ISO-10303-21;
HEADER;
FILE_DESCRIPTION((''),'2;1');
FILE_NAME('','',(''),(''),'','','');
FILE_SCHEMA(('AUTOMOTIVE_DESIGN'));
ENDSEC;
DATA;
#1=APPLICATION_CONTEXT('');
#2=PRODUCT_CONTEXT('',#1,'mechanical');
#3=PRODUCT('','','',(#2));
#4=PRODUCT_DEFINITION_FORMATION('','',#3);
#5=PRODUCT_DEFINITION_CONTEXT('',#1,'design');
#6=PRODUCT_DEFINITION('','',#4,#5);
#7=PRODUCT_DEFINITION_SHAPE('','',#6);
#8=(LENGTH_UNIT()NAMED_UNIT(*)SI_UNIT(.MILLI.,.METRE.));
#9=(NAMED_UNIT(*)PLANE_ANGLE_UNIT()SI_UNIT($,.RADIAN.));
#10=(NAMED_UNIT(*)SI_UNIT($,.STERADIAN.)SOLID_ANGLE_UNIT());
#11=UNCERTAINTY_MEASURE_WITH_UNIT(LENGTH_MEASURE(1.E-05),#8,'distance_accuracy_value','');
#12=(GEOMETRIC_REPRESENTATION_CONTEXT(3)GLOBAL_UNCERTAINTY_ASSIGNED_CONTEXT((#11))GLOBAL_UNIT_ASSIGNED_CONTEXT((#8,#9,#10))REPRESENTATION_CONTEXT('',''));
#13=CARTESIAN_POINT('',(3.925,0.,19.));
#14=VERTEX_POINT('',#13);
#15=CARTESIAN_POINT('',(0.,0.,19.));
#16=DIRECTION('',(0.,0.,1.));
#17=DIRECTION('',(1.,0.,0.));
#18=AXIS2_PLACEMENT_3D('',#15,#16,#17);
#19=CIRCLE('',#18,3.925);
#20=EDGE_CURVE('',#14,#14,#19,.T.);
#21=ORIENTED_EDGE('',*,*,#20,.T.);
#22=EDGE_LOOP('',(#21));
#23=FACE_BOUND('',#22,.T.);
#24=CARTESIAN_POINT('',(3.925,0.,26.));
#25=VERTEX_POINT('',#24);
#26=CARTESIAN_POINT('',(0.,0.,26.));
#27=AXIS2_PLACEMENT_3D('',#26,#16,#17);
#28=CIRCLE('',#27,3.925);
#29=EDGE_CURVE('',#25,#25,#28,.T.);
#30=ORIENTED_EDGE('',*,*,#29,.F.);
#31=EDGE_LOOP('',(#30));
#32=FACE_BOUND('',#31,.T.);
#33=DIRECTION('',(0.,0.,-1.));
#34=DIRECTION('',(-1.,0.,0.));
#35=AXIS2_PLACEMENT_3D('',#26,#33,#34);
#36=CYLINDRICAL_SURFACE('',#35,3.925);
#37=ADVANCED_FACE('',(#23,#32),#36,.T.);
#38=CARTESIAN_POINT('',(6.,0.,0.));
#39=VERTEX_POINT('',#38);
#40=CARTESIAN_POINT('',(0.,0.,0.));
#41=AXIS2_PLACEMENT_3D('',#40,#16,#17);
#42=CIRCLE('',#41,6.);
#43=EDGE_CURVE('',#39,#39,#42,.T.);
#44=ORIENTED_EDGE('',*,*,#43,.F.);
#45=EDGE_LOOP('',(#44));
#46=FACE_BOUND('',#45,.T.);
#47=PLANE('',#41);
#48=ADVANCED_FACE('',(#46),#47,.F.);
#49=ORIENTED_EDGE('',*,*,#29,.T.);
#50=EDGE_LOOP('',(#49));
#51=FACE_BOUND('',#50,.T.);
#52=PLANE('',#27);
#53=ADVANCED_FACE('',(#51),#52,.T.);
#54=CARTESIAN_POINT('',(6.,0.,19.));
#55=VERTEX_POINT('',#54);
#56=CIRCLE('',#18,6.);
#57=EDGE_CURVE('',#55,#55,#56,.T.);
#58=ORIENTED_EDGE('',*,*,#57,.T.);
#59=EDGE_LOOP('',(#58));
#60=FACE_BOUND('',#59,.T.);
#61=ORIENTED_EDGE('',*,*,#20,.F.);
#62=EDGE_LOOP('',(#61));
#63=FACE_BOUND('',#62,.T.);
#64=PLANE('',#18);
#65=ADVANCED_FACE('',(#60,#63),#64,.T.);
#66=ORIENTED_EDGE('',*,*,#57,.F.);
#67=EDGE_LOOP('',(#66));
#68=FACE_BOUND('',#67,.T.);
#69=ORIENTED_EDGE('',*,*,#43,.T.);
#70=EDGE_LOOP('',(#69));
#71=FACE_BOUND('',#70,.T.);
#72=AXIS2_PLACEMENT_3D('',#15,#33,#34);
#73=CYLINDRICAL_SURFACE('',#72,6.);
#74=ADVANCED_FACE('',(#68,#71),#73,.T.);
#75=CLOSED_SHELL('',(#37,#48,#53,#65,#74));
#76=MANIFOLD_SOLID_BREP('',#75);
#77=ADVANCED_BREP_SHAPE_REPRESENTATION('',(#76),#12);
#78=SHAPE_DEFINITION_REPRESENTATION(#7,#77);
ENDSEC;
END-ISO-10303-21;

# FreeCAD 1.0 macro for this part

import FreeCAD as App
import Part
import Sketcher

V = App.Vector

doc = App.newDocument("Part")
params = doc.addObject("Spreadsheet::Sheet", "Params")
for row, (alias, value) in enumerate([
    ("sketch1_diameter", "12 mm"),
    ("pad1_length", "19 mm"),
    ("sketch2_diameter", "7.85 mm"),
    ("pad2_length", "7 mm"),
], start=1):
    params.set(f"A{row}", alias)
    params.set(f"B{row}", "=" + value)
    params.setAlias(f"B{row}", alias)

body = doc.addObject("PartDesign::Body", "Body")

sketch1 = body.newObject("Sketcher::SketchObject", "Sketch")
sketch1.AttachmentSupport = (doc.getObject("XY_Plane"), [""])
sketch1.MapMode = "FlatFace"
sketch1.addGeometry(Part.Circle(V(0, 0, 0), V(0, 0, 1), 6), False)
sketch1.addConstraint([
    Sketcher.Constraint("Coincident", 0, 3, -1, 1),
    Sketcher.Constraint("Diameter", 0, 12.0),
])
sketch1.setExpression("Constraints[1]", "Params.sketch1_diameter")
pad1 = body.newObject("PartDesign::Pad", "Pad")
pad1.Profile = sketch1
pad1.setExpression("Length", "Params.pad1_length")

sketch2 = body.newObject("Sketcher::SketchObject", "Sketch001")
sketch2.AttachmentSupport = (doc.getObject("XY_Plane"), [""])
sketch2.MapMode = "FlatFace"
sketch2.AttachmentOffset = App.Placement(V(0, 0, 19), App.Rotation())
sketch2.addGeometry(Part.Circle(V(0, 0, 0), V(0, 0, 1), 3.9), False)
sketch2.addConstraint([
    Sketcher.Constraint("Coincident", 0, 3, -1, 1),
    Sketcher.Constraint("Diameter", 0, 7.85),
])
sketch2.setExpression("Constraints[1]", "Params.sketch2_diameter")
pad2 = body.newObject("PartDesign::Pad", "Pad001")
pad2.Profile = sketch2
pad2.setExpression("Length", "Params.pad2_length")

doc.recompute()
